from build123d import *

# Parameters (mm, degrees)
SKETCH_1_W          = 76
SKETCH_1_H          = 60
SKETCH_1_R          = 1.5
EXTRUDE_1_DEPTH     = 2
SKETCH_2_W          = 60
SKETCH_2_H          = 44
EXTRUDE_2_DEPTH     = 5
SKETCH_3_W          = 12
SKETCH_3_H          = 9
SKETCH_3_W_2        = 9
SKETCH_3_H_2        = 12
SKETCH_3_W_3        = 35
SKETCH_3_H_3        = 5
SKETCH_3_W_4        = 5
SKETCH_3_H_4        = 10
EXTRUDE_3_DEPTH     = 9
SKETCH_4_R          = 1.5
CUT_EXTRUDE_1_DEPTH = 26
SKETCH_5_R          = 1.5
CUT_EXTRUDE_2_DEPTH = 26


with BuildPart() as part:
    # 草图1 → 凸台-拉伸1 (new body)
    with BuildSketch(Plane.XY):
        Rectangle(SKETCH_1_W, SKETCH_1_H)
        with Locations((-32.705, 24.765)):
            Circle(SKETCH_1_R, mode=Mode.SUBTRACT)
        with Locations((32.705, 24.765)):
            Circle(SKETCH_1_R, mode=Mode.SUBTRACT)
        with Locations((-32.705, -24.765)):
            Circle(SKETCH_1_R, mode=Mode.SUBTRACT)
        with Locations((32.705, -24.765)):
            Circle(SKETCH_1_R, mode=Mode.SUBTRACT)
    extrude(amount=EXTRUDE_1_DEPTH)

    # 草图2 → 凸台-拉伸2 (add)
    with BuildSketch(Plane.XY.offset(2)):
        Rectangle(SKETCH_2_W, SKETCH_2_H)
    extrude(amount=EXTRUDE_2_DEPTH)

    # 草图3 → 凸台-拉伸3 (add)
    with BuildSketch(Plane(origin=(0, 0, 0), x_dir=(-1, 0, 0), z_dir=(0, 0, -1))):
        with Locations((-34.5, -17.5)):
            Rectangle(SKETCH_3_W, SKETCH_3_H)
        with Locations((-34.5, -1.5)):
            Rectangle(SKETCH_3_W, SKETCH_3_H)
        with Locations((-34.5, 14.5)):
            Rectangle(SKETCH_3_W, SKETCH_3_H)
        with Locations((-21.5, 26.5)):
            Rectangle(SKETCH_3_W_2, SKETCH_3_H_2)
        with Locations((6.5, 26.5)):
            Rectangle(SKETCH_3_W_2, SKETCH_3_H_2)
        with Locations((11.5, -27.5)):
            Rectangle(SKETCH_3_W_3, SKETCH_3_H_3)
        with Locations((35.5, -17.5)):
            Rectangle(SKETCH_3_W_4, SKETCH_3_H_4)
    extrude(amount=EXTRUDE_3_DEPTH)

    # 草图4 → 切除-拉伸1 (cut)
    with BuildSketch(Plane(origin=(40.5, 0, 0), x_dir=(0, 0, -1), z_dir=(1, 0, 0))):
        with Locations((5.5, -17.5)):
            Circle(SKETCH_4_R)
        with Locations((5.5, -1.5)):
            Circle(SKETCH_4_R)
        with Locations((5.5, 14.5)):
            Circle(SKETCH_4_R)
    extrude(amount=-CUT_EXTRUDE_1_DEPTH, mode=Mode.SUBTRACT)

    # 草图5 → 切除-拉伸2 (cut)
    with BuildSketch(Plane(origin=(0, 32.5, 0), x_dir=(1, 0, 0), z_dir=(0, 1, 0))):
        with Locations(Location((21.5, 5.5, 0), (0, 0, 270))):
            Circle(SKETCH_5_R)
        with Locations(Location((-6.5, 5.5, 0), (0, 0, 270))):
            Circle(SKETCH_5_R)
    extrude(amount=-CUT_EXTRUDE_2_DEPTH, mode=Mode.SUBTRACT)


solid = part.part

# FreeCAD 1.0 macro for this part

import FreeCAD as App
import Part
import Sketcher

V = App.Vector


def add_polygon(sketch, points):
    """Adds a closed chain of lines whose ends are joined by coincident constraints."""
    first, n = sketch.GeometryCount, len(points)
    for a, b in zip(points, points[1:] + points[:1]):
        sketch.addGeometry(Part.LineSegment(App.Vector(*a, 0), App.Vector(*b, 0)), False)
    for i in range(n):
        sketch.addConstraint(Sketcher.Constraint("Coincident", first + i, 2, first + (i + 1) % n, 1))

doc = App.newDocument("Part")
params = doc.addObject("Spreadsheet::Sheet", "Params")
for row, (alias, value) in enumerate([
    ("sketch1_diameter", "3 mm"),
    ("sketch1_width", "76 mm"),
    ("sketch1_height", "60 mm"),
    ("pad1_length", "2 mm"),
    ("sketch2_width", "60 mm"),
    ("sketch2_height", "44 mm"),
    ("pad2_length", "5 mm"),
    ("sketch3_width", "12 mm"),
    ("sketch3_width2", "9 mm"),
    ("sketch3_width3", "35 mm"),
    ("sketch3_width4", "5 mm"),
    ("sketch3_height", "10 mm"),
    ("pad3_length", "9 mm"),
    ("sketch4_diameter", "3 mm"),
    ("pocket1_length", "26 mm"),
    ("sketch5_diameter", "3 mm"),
    ("pocket2_length", "26 mm"),
], start=1):
    params.set(f"A{row}", alias)
    params.set(f"B{row}", "=" + value)
    params.setAlias(f"B{row}", alias)

body = doc.addObject("PartDesign::Body", "Body")

sketch1 = doc.addObject("Sketcher::SketchObject", "Sketch")
body.addObject(sketch1)
sketch1.AttachmentSupport = (doc.XY_Plane, [""])
sketch1.MapMode = "FlatFace"
add_polygon(sketch1, [(-38, 30), (-38, -30), (38, -30), (38, 30)])
sketch1.addGeometry(Part.Circle(V(-32.7, -24.8, 0), V(0, 0, 1), 1.5), False)
sketch1.addGeometry(Part.Circle(V(32.7, -24.8, 0), V(0, 0, 1), 1.5), False)
sketch1.addGeometry(Part.Circle(V(-32.7, 24.8, 0), V(0, 0, 1), 1.5), False)
sketch1.addGeometry(Part.Circle(V(32.7, 24.8, 0), V(0, 0, 1), 1.5), False)
sketch1.addConstraint([
    Sketcher.Constraint("Vertical", 0),
    Sketcher.Constraint("Horizontal", 1),
    Sketcher.Constraint("Vertical", 2),
    Sketcher.Constraint("Horizontal", 3),
    Sketcher.Constraint("Equal", 4, 5),
    Sketcher.Constraint("Equal", 5, 6),
    Sketcher.Constraint("Equal", 6, 7),
    Sketcher.Constraint("Symmetric", 5, 3, 6, 3, -1, 1),
    Sketcher.Constraint("Symmetric", 4, 3, 7, 3, -1, 1),
    Sketcher.Constraint("Symmetric", 0, 2, 2, 2, -1, 1),
    Sketcher.Constraint("Symmetric", 4, 3, 5, 3, -2),
    Sketcher.Constraint("Diameter", 4, 3.0),
    Sketcher.Constraint("DistanceX", 1, 1, 1, 2, 76.0),
    Sketcher.Constraint("DistanceY", 0, 2, 0, 1, 60.0),
    Sketcher.Constraint("DistanceX", 4, 3, 5, 3, 65.41),
    Sketcher.Constraint("DistanceY", 4, 3, 6, 3, 49.53),
])
sketch1.setExpression("Constraints[15]", "Params.sketch1_diameter")
sketch1.setExpression("Constraints[16]", "Params.sketch1_width")
sketch1.setExpression("Constraints[17]", "Params.sketch1_height")
pad1 = doc.addObject("PartDesign::Pad", "Pad")
body.addObject(pad1)
pad1.Profile = sketch1
pad1.setExpression("Length", "Params.pad1_length")

sketch2 = doc.addObject("Sketcher::SketchObject", "Sketch001")
body.addObject(sketch2)
sketch2.AttachmentSupport = (doc.XY_Plane, [""])
sketch2.MapMode = "FlatFace"
sketch2.AttachmentOffset = App.Placement(V(0, 0, 2), App.Rotation())
add_polygon(sketch2, [(-30, 22), (-30, -22), (30, -22), (30, 22)])
sketch2.addConstraint([
    Sketcher.Constraint("Vertical", 0),
    Sketcher.Constraint("Horizontal", 1),
    Sketcher.Constraint("Vertical", 2),
    Sketcher.Constraint("Horizontal", 3),
    Sketcher.Constraint("Symmetric", 0, 2, 2, 2, -1, 1),
    Sketcher.Constraint("DistanceX", 1, 1, 1, 2, 60.0),
    Sketcher.Constraint("DistanceY", 0, 2, 0, 1, 44.0),
])
sketch2.setExpression("Constraints[9]", "Params.sketch2_width")
sketch2.setExpression("Constraints[10]", "Params.sketch2_height")
pad2 = doc.addObject("PartDesign::Pad", "Pad001")
body.addObject(pad2)
pad2.Profile = sketch2
pad2.setExpression("Length", "Params.pad2_length")

sketch3 = doc.addObject("Sketcher::SketchObject", "Sketch002")
body.addObject(sketch3)
sketch3.AttachmentSupport = (doc.XY_Plane, [""])
sketch3.MapMode = "FlatFace"
add_polygon(sketch3, [(40, -13), (40, -22), (28, -22), (28, -13)])
add_polygon(sketch3, [(40, 3), (40, -6), (28, -6), (28, 3)])
add_polygon(sketch3, [(40, 19), (40, 10), (28, 10), (28, 19)])
add_polygon(sketch3, [(26, 32), (26, 20), (17, 20), (17, 32)])
add_polygon(sketch3, [(-2, 32), (-2, 20), (-11, 20), (-11, 32)])
add_polygon(sketch3, [(6, -25), (6, -30), (-29, -30), (-29, -25)])
add_polygon(sketch3, [(-33, -12), (-33, -22), (-38, -22), (-38, -12)])
sketch3.addConstraint([
    Sketcher.Constraint("Vertical", 0),
    Sketcher.Constraint("Horizontal", 1),
    Sketcher.Constraint("Vertical", 2),
    Sketcher.Constraint("Horizontal", 3),
    Sketcher.Constraint("Vertical", 4),
    Sketcher.Constraint("Horizontal", 5),
    Sketcher.Constraint("Vertical", 6),
    Sketcher.Constraint("Horizontal", 7),
    Sketcher.Constraint("Vertical", 8),
    Sketcher.Constraint("Horizontal", 9),
    Sketcher.Constraint("Vertical", 10),
    Sketcher.Constraint("Horizontal", 11),
    Sketcher.Constraint("Vertical", 12),
    Sketcher.Constraint("Horizontal", 13),
    Sketcher.Constraint("Vertical", 14),
    Sketcher.Constraint("Horizontal", 15),
    Sketcher.Constraint("Vertical", 16),
    Sketcher.Constraint("Horizontal", 17),
    Sketcher.Constraint("Vertical", 18),
    Sketcher.Constraint("Horizontal", 19),
    Sketcher.Constraint("Vertical", 20),
    Sketcher.Constraint("Horizontal", 21),
    Sketcher.Constraint("Vertical", 22),
    Sketcher.Constraint("Horizontal", 23),
    Sketcher.Constraint("Vertical", 24),
    Sketcher.Constraint("Horizontal", 25),
    Sketcher.Constraint("Vertical", 26),
    Sketcher.Constraint("Horizontal", 27),
    Sketcher.Constraint("Horizontal", 13, 2, 16, 2),
    Sketcher.Constraint("Horizontal", 15, 2, 18, 2),
    Sketcher.Constraint("Vertical", 3, 2, 4, 2),
    Sketcher.Constraint("Vertical", 2, 2, 5, 2),
    Sketcher.Constraint("Vertical", 7, 2, 8, 2),
    Sketcher.Constraint("Vertical", 6, 2, 9, 2),
    Sketcher.Constraint("Equal", 15, 17),
    Sketcher.Constraint("Equal", 19, 0),
    Sketcher.Constraint("Equal", 2, 4),
    Sketcher.Constraint("Equal", 6, 8),
    Sketcher.Constraint("Equal", 11, 12),
    Sketcher.Constraint("Equal", 27, 20),
    Sketcher.Constraint("DistanceX", 1, 2, 1, 1, 12.0),
    Sketcher.Constraint("DistanceX", 13, 2, 13, 1, 9.0),
    Sketcher.Constraint("DistanceX", 21, 2, 21, 1, 35.0),
    Sketcher.Constraint("DistanceX", 25, 2, 25, 1, 5.0),
    Sketcher.Constraint("DistanceY", 24, 2, 24, 1, 10.0),
    Sketcher.Constraint("DistanceY", 0, 2, -1, 1, 22.0),
    Sketcher.Constraint("DistanceY", 4, 2, -1, 1, 6.0),
    Sketcher.Constraint("DistanceY", -1, 1, 8, 2, 10.0),
    Sketcher.Constraint("DistanceX", -1, 1, 12, 2, 26.0),
    Sketcher.Constraint("DistanceX", 16, 2, -1, 1, 2.0),
    Sketcher.Constraint("DistanceX", -1, 1, 20, 2, 6.0),
    Sketcher.Constraint("DistanceY", 20, 2, -1, 1, 30.0),
    Sketcher.Constraint("DistanceX", 24, 2, -1, 1, 33.0),
    Sketcher.Constraint("DistanceY", 24, 2, 17, 2, 43.0),
    Sketcher.Constraint("DistanceX", -1, 1, 0, 2, 40.5),
    Sketcher.Constraint("DistanceY", -1, 1, 12, 2, 20.5),
])
sketch3.setExpression("Constraints[68]", "Params.sketch3_width")
sketch3.setExpression("Constraints[69]", "Params.sketch3_width2")
sketch3.setExpression("Constraints[70]", "Params.sketch3_width3")
sketch3.setExpression("Constraints[71]", "Params.sketch3_width4")
sketch3.setExpression("Constraints[72]", "Params.sketch3_height")
pad3 = doc.addObject("PartDesign::Pad", "Pad002")
body.addObject(pad3)
pad3.Profile = sketch3
pad3.setExpression("Length", "Params.pad3_length")
pad3.Reversed = True

sketch4 = doc.addObject("Sketcher::SketchObject", "Sketch003")
body.addObject(sketch4)
sketch4.AttachmentSupport = (doc.YZ_Plane, [""])
sketch4.MapMode = "FlatFace"
sketch4.AttachmentOffset = App.Placement(V(0, 0, 40.5), App.Rotation())
sketch4.addGeometry([
    Part.Circle(V(-17.5, -5.5, 0), V(0, 0, 1), 1.5),
    Part.Circle(V(-1.5, -5.5, 0), V(0, 0, 1), 1.5),
    Part.Circle(V(14.5, -5.5, 0), V(0, 0, 1), 1.5),
], False)
sketch4.addConstraint([
    Sketcher.Constraint("Equal", 0, 1),
    Sketcher.Constraint("Equal", 1, 2),
    Sketcher.Constraint("Horizontal", 0, 3, 1, 3),
    Sketcher.Constraint("Horizontal", 1, 3, 2, 3),
    Sketcher.Constraint("Diameter", 0, 3.0),
    Sketcher.Constraint("DistanceX", 0, 3, 1, 3, 16.0),
    Sketcher.Constraint("DistanceX", 1, 3, 2, 3, 16.0),
    Sketcher.Constraint("DistanceX", 0, 3, -1, 1, 17.5),
    Sketcher.Constraint("DistanceY", 0, 3, -1, 1, 5.5),
])
sketch4.setExpression("Constraints[4]", "Params.sketch4_diameter")
pocket1 = doc.addObject("PartDesign::Pocket", "Pocket")
body.addObject(pocket1)
pocket1.Profile = sketch4
pocket1.setExpression("Length", "Params.pocket1_length")

sketch5 = doc.addObject("Sketcher::SketchObject", "Sketch004")
body.addObject(sketch5)
sketch5.AttachmentSupport = (doc.XZ_Plane, [""])
sketch5.MapMode = "FlatFace"
sketch5.AttachmentOffset = App.Placement(V(0, 0, -32.5), App.Rotation())
sketch5.addGeometry([
    Part.Circle(V(21.5, -5.5, 0), V(0, 0, 1), 1.5),
    Part.Circle(V(-6.5, -5.5, 0), V(0, 0, 1), 1.5),
], False)
sketch5.addConstraint([
    Sketcher.Constraint("Equal", 0, 1),
    Sketcher.Constraint("Horizontal", 0, 3, 1, 3),
    Sketcher.Constraint("Diameter", 0, 3.0),
    Sketcher.Constraint("DistanceX", 1, 3, 0, 3, 28.0),
    Sketcher.Constraint("DistanceX", -1, 1, 0, 3, 21.5),
    Sketcher.Constraint("DistanceY", 0, 3, -1, 1, 5.5),
])
sketch5.setExpression("Constraints[2]", "Params.sketch5_diameter")
pocket2 = doc.addObject("PartDesign::Pocket", "Pocket001")
body.addObject(pocket2)
pocket2.Profile = sketch5
pocket2.setExpression("Length", "Params.pocket2_length")
pocket2.Reversed = True

doc.recompute()
